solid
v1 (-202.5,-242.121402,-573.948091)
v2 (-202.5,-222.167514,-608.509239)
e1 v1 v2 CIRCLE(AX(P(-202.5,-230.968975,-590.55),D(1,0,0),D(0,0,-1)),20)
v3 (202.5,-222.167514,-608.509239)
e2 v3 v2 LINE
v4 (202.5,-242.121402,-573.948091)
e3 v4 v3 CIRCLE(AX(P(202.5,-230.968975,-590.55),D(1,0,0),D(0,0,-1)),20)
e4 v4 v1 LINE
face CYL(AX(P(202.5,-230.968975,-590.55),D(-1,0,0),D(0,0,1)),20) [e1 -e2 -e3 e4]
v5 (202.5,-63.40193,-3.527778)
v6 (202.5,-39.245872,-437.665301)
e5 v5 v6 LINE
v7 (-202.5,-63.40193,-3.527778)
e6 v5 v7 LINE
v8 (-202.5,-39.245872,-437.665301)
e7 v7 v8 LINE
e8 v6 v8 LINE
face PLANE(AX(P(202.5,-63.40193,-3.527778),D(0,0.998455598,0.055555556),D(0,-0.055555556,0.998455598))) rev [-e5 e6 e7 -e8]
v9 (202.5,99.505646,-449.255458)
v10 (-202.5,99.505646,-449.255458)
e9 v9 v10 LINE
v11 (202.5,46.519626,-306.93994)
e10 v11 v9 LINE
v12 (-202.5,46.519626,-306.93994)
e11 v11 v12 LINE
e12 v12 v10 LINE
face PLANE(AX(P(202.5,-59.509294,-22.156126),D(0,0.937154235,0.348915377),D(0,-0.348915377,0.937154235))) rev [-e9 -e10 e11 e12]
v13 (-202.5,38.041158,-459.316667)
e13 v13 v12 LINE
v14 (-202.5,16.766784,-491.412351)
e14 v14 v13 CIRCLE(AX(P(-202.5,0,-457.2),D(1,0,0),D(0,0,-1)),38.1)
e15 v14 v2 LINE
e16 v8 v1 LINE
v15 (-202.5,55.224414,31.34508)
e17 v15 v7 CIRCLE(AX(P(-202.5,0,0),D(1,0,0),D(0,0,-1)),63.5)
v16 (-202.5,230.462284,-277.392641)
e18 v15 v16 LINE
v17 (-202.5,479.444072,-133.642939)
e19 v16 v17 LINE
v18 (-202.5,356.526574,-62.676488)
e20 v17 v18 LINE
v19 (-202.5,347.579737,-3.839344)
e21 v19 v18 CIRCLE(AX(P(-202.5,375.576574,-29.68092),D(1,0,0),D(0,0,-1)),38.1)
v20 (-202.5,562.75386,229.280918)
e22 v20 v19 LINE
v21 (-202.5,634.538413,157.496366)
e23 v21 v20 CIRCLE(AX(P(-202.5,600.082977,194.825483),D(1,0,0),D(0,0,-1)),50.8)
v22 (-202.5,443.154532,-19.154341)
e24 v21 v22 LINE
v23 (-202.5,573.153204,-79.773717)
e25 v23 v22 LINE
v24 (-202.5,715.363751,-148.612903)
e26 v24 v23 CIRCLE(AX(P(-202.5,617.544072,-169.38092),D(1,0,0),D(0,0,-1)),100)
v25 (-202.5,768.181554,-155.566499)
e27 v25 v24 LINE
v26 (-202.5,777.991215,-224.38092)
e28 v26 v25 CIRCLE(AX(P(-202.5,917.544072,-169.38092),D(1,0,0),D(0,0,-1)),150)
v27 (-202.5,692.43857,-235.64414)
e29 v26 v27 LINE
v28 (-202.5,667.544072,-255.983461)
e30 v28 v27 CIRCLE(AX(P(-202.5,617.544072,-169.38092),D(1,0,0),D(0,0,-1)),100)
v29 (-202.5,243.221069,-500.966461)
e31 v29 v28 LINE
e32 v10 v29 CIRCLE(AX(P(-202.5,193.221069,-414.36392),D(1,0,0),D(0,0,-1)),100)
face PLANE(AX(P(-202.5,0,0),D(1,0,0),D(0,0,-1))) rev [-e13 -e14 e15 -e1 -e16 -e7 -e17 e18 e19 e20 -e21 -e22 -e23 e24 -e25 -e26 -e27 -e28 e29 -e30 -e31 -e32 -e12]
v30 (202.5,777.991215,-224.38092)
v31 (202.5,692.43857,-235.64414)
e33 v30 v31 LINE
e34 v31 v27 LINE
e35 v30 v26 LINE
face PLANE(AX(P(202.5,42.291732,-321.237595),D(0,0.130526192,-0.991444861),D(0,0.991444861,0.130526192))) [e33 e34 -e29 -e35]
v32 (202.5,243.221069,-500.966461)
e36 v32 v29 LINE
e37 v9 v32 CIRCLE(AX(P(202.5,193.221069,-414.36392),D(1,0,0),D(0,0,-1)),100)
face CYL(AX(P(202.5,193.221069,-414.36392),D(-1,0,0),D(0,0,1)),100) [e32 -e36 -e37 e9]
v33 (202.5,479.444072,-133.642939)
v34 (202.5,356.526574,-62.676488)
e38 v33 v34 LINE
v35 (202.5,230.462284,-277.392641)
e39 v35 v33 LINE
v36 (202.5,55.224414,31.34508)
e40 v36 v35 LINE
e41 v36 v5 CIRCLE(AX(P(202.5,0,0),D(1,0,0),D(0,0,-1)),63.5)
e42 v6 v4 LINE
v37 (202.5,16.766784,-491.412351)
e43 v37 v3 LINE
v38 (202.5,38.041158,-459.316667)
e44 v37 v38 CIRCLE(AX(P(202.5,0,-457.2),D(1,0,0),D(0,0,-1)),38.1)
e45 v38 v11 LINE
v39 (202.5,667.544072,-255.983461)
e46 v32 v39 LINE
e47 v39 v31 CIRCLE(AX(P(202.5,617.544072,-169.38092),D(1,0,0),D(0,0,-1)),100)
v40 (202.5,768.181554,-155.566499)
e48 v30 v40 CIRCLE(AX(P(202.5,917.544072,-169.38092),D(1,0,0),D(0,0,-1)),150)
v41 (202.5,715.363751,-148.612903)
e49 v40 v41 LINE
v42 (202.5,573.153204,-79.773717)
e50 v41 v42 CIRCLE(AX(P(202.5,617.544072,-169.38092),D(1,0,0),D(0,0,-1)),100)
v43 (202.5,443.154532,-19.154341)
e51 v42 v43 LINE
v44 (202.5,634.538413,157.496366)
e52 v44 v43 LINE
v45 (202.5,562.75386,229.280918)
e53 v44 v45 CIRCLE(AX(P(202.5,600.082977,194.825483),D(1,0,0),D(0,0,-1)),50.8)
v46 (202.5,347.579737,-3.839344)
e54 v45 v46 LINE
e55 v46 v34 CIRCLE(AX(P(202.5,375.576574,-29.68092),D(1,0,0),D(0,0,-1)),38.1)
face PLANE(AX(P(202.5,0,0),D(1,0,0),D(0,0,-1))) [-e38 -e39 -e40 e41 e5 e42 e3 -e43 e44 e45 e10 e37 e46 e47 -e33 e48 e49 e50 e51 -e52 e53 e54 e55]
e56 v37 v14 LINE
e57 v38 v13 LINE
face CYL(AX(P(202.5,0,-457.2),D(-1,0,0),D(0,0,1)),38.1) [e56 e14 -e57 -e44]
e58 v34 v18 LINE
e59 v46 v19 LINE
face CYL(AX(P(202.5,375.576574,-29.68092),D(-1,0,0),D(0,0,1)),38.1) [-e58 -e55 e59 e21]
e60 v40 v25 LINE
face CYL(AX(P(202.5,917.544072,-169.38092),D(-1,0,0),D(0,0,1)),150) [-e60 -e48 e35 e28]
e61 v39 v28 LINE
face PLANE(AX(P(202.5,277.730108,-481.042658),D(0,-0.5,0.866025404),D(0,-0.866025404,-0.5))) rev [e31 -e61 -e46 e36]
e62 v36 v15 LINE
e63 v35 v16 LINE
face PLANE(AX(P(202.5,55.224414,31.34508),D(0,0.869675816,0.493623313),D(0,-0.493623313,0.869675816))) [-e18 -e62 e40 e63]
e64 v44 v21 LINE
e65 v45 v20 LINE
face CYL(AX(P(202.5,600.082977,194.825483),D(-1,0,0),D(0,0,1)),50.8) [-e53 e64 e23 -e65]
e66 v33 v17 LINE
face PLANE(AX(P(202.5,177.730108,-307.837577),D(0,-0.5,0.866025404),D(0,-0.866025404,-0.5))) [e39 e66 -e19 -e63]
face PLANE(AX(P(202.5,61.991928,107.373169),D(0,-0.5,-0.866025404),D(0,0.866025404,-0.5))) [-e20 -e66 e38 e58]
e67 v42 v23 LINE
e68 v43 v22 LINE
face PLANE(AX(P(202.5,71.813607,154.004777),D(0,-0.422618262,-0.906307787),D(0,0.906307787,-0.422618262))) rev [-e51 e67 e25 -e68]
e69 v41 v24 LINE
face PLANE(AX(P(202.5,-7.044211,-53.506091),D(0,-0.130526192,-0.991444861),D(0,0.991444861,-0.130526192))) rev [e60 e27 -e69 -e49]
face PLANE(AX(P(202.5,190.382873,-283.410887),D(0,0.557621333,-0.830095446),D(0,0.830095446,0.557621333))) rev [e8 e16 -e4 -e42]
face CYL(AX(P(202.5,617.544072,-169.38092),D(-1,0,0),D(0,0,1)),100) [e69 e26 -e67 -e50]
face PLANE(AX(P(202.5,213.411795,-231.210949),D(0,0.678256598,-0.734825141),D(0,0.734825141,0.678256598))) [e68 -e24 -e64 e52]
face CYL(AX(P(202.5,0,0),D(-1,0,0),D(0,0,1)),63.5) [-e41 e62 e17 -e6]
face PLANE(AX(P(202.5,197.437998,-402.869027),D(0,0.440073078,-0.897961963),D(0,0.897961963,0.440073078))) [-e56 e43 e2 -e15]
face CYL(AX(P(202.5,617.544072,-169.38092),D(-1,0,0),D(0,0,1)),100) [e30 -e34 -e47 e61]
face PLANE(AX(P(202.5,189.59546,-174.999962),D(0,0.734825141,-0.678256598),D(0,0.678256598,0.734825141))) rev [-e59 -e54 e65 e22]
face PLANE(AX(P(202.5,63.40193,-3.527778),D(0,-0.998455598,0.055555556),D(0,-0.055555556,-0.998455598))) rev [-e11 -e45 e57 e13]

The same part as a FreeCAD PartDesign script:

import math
import FreeCAD as App
import Part
import Sketcher
from FreeCAD import Vector
Q = App.Units.Quantity

doc = App.newDocument("Part")
body = doc.addObject("PartDesign::Body", "Body")

# Sketch on YZ plane
sketch1 = doc.addObject("Sketcher::SketchObject", "Sketch")
body.addObject(sketch1)
sketch1.AttachmentSupport = (doc.YZ_Plane, [""])
sketch1.MapMode = "FlatFace"
sketch1.addGeometry(Part.LineSegment(Vector(-63.40193, -3.527778, 0), Vector(-39.245872, -437.665301, 0)), False)
sketch1.addGeometry(Part.LineSegment(Vector(-39.245872, -437.665301, 0), Vector(-242.121402, -573.948091, 0)), False)
sketch1.addGeometry(Part.ArcOfCircle(Part.Circle(Vector(-230.968975, -590.55, 0), Vector(0, 0, 1), 20), math.radians(123.891456), math.radians(296.108544)), False)
sketch1.addGeometry(Part.LineSegment(Vector(-222.167514, -608.509239, 0), Vector(16.766784, -491.412351, 0)), False)
sketch1.addGeometry(Part.ArcOfCircle(Part.Circle(Vector(0, -457.2, 0), Vector(0, 0, 1), 38.1), math.radians(-63.891456), math.radians(-3.184739)), False)
sketch1.addGeometry(Part.LineSegment(Vector(38.041158, -459.316667, 0), Vector(46.519626, -306.93994, 0)), False)
sketch1.addGeometry(Part.LineSegment(Vector(46.519626, -306.93994, 0), Vector(99.505646, -449.255458, 0)), False)
sketch1.addGeometry(Part.ArcOfCircle(Part.Circle(Vector(193.221069, -414.36392, 0), Vector(0, 0, 1), 100), math.radians(-159.579011), math.radians(-60)), False)
sketch1.addGeometry(Part.LineSegment(Vector(243.221069, -500.966461, 0), Vector(667.544072, -255.983461, 0)), False)
sketch1.addGeometry(Part.ArcOfCircle(Part.Circle(Vector(617.544072, -169.38092, 0), Vector(0, 0, 1), 100), math.radians(-60), math.radians(-41.500929)), False)
sketch1.addGeometry(Part.LineSegment(Vector(692.43857, -235.64414, 0), Vector(777.991215, -224.38092, 0)), False)
sketch1.addGeometry(Part.ArcOfCircle(Part.Circle(Vector(917.544072, -169.38092, 0), Vector(0, 0, 1), 150), math.radians(-158.489812), math.radians(174.715792)), False)
sketch1.addGeometry(Part.LineSegment(Vector(768.181554, -155.566499, 0), Vector(715.363751, -148.612903, 0)), False)
sketch1.addGeometry(Part.ArcOfCircle(Part.Circle(Vector(617.544072, -169.38092, 0), Vector(0, 0, 1), 100), math.radians(11.986439), math.radians(116.353537)), False)
sketch1.addGeometry(Part.LineSegment(Vector(573.153204, -79.773717, 0), Vector(443.154532, -19.154341, 0)), False)
sketch1.addGeometry(Part.LineSegment(Vector(443.154532, -19.154341, 0), Vector(634.538413, 157.496366, 0)), False)
sketch1.addGeometry(Part.ArcOfCircle(Part.Circle(Vector(600.082977, 194.825483, 0), Vector(0, 0, 1), 50.8), math.radians(-47.292443), math.radians(137.292443)), False)
sketch1.addGeometry(Part.LineSegment(Vector(562.75386, 229.280918, 0), Vector(347.579737, -3.839344, 0)), False)
sketch1.addGeometry(Part.ArcOfCircle(Part.Circle(Vector(375.576574, -29.68092, 0), Vector(0, 0, 1), 38.1), math.radians(137.292443), math.radians(240)), False)
sketch1.addGeometry(Part.LineSegment(Vector(356.526574, -62.676488, 0), Vector(479.444072, -133.642939, 0)), False)
sketch1.addGeometry(Part.LineSegment(Vector(479.444072, -133.642939, 0), Vector(230.462284, -277.392641, 0)), False)
sketch1.addGeometry(Part.LineSegment(Vector(230.462284, -277.392641, 0), Vector(55.224414, 31.34508, 0)), False)
sketch1.addGeometry(Part.ArcOfCircle(Part.Circle(Vector(0, 0, 0), Vector(0, 0, 1), 63.5), math.radians(29.579011), math.radians(183.184739)), False)
sketch1.addConstraint(Sketcher.Constraint("Coincident", 0, 2, 1, 1))
sketch1.addConstraint(Sketcher.Constraint("Tangent", 1, 2, 2, 1))
sketch1.addConstraint(Sketcher.Constraint("Tangent", 2, 2, 3, 1))
sketch1.addConstraint(Sketcher.Constraint("Tangent", 3, 2, 4, 1))
sketch1.addConstraint(Sketcher.Constraint("Tangent", 4, 2, 5, 1))
sketch1.addConstraint(Sketcher.Constraint("Coincident", 5, 2, 6, 1))
sketch1.addConstraint(Sketcher.Constraint("Tangent", 6, 2, 7, 1))
sketch1.addConstraint(Sketcher.Constraint("Tangent", 7, 2, 8, 1))
sketch1.addConstraint(Sketcher.Constraint("Tangent", 8, 2, 9, 1))
sketch1.addConstraint(Sketcher.Constraint("Coincident", 9, 2, 10, 1))
sketch1.addConstraint(Sketcher.Constraint("Coincident", 10, 2, 11, 1))
sketch1.addConstraint(Sketcher.Constraint("Coincident", 11, 2, 12, 1))
sketch1.addConstraint(Sketcher.Constraint("Coincident", 12, 2, 13, 1))
sketch1.addConstraint(Sketcher.Constraint("Coincident", 13, 2, 14, 1))
sketch1.addConstraint(Sketcher.Constraint("Coincident", 14, 2, 15, 1))
sketch1.addConstraint(Sketcher.Constraint("Tangent", 15, 2, 16, 1))
sketch1.addConstraint(Sketcher.Constraint("Tangent", 16, 2, 17, 1))
sketch1.addConstraint(Sketcher.Constraint("Tangent", 17, 2, 18, 1))
sketch1.addConstraint(Sketcher.Constraint("Tangent", 18, 2, 19, 1))
sketch1.addConstraint(Sketcher.Constraint("Coincident", 19, 2, 20, 1))
sketch1.addConstraint(Sketcher.Constraint("Coincident", 20, 2, 21, 1))
sketch1.addConstraint(Sketcher.Constraint("Tangent", 21, 2, 22, 1))
sketch1.addConstraint(Sketcher.Constraint("Tangent", 22, 2, 0, 1))
sketch1.addConstraint(Sketcher.Constraint("Coincident", 22, 3, -1, 1))
sketch1.addConstraint(Sketcher.Constraint("Coincident", 13, 3, 9, 3))
sketch1.addConstraint(Sketcher.Constraint("Equal", 7, 9))
sketch1.addConstraint(Sketcher.Constraint("Equal", 9, 13))
sketch1.addConstraint(Sketcher.Constraint("Equal", 4, 18))
sketch1.addConstraint(Sketcher.Constraint("PointOnObject", 4, 3, -2))
sketch1.addConstraint(Sketcher.Constraint("Parallel", 8, 20))
sketch1.addConstraint(Sketcher.Constraint("Horizontal", 9, 3, 11, 3))
sketch1.addConstraint(Sketcher.Constraint("Radius", 2, 20.0))
sketch1.addConstraint(Sketcher.Constraint("Radius", 7, 100.0))
sketch1.addConstraint(Sketcher.Constraint("Radius", 11, 150.0))
sketch1.addConstraint(Sketcher.Constraint("Radius", 4, 38.1))
sketch1.addConstraint(Sketcher.Constraint("Radius", 16, 50.8))
sketch1.addConstraint(Sketcher.Constraint("Radius", 22, 63.5))
sketch1.addConstraint(Sketcher.Constraint("Angle", 8, Q("30 deg")))
sketch1.addConstraint(Sketcher.Constraint("Angle", 14, Q("155 deg")))
sketch1.addConstraint(Sketcher.Constraint("Angle", 19, Q("-30 deg")))
sketch1.addConstraint(Sketcher.Constraint("Angle", 10, Q("7.5 deg")))
sketch1.addConstraint(Sketcher.Constraint("Angle", 12, Q("172.5 deg")))
sketch1.addConstraint(Sketcher.Constraint("DistanceX", 9, 3, 11, 3, 300.0))
sketch1.addConstraint(Sketcher.Constraint("DistanceY", 10, 2, 11, 3, 55.0))
sketch1.addConstraint(Sketcher.Constraint("DistanceY", 4, 3, -1, 1, 457.2))
sketch1.addConstraint(Sketcher.Constraint("DistanceY", 9, 3, 18, 3, 139.7))
sketch1.addConstraint(Sketcher.Constraint("DistanceX", 19, 2, 9, 3, 138.1))
sketch1.addConstraint(Sketcher.Constraint("DistanceY", 2, 3, -1, 1, 590.55))
sketch1.addConstraint(Sketcher.Constraint("Distance", 8, 489.966))
sketch1.addConstraint(Sketcher.Constraint("DistanceY", 18, 3, 21, 2, 61.026001))
sketch1.addConstraint(Sketcher.Constraint("Distance", 3, 266.085099))
sketch1.addConstraint(Sketcher.Constraint("Distance", 17, 317.245898))
sketch1.addConstraint(Sketcher.Constraint("Distance", 19, 141.932901))
sketch1.addConstraint(Sketcher.Constraint("DistanceY", 0, 2, -1, 1, 437.665301))
sketch1.addConstraint(Sketcher.Constraint("DistanceX", 1, 2, -1, 1, 242.121402))
sketch1.addConstraint(Sketcher.Constraint("DistanceY", 11, 2, -1, 1, 155.566499))
sketch1.addConstraint(Sketcher.Constraint("DistanceX", 0, 2, 5, 2, 85.765499))
sketch1.addConstraint(Sketcher.Constraint("DistanceY", 19, 2, 14, 2, 114.488598))
sketch1.addConstraint(Sketcher.Constraint("DistanceY", 5, 2, 20, 2, 29.547298))
sketch1.addConstraint(Sketcher.Constraint("DistanceX", -1, 1, 7, 3, 193.221069))
sketch1.addConstraint(Sketcher.Constraint("DistanceY", 7, 3, -1, 1, 414.36392))
sketch1.addConstraint(Sketcher.Constraint("DistanceX", -1, 1, 14, 2, 443.154532))
sketch1.addConstraint(Sketcher.Constraint("DistanceX", -1, 1, 16, 2, 562.75386))
pad1 = doc.addObject("PartDesign::Pad", "Pad")
body.addObject(pad1)
pad1.Profile = sketch1
pad1.Length = 405
pad1.Midplane = True

doc.recompute()
